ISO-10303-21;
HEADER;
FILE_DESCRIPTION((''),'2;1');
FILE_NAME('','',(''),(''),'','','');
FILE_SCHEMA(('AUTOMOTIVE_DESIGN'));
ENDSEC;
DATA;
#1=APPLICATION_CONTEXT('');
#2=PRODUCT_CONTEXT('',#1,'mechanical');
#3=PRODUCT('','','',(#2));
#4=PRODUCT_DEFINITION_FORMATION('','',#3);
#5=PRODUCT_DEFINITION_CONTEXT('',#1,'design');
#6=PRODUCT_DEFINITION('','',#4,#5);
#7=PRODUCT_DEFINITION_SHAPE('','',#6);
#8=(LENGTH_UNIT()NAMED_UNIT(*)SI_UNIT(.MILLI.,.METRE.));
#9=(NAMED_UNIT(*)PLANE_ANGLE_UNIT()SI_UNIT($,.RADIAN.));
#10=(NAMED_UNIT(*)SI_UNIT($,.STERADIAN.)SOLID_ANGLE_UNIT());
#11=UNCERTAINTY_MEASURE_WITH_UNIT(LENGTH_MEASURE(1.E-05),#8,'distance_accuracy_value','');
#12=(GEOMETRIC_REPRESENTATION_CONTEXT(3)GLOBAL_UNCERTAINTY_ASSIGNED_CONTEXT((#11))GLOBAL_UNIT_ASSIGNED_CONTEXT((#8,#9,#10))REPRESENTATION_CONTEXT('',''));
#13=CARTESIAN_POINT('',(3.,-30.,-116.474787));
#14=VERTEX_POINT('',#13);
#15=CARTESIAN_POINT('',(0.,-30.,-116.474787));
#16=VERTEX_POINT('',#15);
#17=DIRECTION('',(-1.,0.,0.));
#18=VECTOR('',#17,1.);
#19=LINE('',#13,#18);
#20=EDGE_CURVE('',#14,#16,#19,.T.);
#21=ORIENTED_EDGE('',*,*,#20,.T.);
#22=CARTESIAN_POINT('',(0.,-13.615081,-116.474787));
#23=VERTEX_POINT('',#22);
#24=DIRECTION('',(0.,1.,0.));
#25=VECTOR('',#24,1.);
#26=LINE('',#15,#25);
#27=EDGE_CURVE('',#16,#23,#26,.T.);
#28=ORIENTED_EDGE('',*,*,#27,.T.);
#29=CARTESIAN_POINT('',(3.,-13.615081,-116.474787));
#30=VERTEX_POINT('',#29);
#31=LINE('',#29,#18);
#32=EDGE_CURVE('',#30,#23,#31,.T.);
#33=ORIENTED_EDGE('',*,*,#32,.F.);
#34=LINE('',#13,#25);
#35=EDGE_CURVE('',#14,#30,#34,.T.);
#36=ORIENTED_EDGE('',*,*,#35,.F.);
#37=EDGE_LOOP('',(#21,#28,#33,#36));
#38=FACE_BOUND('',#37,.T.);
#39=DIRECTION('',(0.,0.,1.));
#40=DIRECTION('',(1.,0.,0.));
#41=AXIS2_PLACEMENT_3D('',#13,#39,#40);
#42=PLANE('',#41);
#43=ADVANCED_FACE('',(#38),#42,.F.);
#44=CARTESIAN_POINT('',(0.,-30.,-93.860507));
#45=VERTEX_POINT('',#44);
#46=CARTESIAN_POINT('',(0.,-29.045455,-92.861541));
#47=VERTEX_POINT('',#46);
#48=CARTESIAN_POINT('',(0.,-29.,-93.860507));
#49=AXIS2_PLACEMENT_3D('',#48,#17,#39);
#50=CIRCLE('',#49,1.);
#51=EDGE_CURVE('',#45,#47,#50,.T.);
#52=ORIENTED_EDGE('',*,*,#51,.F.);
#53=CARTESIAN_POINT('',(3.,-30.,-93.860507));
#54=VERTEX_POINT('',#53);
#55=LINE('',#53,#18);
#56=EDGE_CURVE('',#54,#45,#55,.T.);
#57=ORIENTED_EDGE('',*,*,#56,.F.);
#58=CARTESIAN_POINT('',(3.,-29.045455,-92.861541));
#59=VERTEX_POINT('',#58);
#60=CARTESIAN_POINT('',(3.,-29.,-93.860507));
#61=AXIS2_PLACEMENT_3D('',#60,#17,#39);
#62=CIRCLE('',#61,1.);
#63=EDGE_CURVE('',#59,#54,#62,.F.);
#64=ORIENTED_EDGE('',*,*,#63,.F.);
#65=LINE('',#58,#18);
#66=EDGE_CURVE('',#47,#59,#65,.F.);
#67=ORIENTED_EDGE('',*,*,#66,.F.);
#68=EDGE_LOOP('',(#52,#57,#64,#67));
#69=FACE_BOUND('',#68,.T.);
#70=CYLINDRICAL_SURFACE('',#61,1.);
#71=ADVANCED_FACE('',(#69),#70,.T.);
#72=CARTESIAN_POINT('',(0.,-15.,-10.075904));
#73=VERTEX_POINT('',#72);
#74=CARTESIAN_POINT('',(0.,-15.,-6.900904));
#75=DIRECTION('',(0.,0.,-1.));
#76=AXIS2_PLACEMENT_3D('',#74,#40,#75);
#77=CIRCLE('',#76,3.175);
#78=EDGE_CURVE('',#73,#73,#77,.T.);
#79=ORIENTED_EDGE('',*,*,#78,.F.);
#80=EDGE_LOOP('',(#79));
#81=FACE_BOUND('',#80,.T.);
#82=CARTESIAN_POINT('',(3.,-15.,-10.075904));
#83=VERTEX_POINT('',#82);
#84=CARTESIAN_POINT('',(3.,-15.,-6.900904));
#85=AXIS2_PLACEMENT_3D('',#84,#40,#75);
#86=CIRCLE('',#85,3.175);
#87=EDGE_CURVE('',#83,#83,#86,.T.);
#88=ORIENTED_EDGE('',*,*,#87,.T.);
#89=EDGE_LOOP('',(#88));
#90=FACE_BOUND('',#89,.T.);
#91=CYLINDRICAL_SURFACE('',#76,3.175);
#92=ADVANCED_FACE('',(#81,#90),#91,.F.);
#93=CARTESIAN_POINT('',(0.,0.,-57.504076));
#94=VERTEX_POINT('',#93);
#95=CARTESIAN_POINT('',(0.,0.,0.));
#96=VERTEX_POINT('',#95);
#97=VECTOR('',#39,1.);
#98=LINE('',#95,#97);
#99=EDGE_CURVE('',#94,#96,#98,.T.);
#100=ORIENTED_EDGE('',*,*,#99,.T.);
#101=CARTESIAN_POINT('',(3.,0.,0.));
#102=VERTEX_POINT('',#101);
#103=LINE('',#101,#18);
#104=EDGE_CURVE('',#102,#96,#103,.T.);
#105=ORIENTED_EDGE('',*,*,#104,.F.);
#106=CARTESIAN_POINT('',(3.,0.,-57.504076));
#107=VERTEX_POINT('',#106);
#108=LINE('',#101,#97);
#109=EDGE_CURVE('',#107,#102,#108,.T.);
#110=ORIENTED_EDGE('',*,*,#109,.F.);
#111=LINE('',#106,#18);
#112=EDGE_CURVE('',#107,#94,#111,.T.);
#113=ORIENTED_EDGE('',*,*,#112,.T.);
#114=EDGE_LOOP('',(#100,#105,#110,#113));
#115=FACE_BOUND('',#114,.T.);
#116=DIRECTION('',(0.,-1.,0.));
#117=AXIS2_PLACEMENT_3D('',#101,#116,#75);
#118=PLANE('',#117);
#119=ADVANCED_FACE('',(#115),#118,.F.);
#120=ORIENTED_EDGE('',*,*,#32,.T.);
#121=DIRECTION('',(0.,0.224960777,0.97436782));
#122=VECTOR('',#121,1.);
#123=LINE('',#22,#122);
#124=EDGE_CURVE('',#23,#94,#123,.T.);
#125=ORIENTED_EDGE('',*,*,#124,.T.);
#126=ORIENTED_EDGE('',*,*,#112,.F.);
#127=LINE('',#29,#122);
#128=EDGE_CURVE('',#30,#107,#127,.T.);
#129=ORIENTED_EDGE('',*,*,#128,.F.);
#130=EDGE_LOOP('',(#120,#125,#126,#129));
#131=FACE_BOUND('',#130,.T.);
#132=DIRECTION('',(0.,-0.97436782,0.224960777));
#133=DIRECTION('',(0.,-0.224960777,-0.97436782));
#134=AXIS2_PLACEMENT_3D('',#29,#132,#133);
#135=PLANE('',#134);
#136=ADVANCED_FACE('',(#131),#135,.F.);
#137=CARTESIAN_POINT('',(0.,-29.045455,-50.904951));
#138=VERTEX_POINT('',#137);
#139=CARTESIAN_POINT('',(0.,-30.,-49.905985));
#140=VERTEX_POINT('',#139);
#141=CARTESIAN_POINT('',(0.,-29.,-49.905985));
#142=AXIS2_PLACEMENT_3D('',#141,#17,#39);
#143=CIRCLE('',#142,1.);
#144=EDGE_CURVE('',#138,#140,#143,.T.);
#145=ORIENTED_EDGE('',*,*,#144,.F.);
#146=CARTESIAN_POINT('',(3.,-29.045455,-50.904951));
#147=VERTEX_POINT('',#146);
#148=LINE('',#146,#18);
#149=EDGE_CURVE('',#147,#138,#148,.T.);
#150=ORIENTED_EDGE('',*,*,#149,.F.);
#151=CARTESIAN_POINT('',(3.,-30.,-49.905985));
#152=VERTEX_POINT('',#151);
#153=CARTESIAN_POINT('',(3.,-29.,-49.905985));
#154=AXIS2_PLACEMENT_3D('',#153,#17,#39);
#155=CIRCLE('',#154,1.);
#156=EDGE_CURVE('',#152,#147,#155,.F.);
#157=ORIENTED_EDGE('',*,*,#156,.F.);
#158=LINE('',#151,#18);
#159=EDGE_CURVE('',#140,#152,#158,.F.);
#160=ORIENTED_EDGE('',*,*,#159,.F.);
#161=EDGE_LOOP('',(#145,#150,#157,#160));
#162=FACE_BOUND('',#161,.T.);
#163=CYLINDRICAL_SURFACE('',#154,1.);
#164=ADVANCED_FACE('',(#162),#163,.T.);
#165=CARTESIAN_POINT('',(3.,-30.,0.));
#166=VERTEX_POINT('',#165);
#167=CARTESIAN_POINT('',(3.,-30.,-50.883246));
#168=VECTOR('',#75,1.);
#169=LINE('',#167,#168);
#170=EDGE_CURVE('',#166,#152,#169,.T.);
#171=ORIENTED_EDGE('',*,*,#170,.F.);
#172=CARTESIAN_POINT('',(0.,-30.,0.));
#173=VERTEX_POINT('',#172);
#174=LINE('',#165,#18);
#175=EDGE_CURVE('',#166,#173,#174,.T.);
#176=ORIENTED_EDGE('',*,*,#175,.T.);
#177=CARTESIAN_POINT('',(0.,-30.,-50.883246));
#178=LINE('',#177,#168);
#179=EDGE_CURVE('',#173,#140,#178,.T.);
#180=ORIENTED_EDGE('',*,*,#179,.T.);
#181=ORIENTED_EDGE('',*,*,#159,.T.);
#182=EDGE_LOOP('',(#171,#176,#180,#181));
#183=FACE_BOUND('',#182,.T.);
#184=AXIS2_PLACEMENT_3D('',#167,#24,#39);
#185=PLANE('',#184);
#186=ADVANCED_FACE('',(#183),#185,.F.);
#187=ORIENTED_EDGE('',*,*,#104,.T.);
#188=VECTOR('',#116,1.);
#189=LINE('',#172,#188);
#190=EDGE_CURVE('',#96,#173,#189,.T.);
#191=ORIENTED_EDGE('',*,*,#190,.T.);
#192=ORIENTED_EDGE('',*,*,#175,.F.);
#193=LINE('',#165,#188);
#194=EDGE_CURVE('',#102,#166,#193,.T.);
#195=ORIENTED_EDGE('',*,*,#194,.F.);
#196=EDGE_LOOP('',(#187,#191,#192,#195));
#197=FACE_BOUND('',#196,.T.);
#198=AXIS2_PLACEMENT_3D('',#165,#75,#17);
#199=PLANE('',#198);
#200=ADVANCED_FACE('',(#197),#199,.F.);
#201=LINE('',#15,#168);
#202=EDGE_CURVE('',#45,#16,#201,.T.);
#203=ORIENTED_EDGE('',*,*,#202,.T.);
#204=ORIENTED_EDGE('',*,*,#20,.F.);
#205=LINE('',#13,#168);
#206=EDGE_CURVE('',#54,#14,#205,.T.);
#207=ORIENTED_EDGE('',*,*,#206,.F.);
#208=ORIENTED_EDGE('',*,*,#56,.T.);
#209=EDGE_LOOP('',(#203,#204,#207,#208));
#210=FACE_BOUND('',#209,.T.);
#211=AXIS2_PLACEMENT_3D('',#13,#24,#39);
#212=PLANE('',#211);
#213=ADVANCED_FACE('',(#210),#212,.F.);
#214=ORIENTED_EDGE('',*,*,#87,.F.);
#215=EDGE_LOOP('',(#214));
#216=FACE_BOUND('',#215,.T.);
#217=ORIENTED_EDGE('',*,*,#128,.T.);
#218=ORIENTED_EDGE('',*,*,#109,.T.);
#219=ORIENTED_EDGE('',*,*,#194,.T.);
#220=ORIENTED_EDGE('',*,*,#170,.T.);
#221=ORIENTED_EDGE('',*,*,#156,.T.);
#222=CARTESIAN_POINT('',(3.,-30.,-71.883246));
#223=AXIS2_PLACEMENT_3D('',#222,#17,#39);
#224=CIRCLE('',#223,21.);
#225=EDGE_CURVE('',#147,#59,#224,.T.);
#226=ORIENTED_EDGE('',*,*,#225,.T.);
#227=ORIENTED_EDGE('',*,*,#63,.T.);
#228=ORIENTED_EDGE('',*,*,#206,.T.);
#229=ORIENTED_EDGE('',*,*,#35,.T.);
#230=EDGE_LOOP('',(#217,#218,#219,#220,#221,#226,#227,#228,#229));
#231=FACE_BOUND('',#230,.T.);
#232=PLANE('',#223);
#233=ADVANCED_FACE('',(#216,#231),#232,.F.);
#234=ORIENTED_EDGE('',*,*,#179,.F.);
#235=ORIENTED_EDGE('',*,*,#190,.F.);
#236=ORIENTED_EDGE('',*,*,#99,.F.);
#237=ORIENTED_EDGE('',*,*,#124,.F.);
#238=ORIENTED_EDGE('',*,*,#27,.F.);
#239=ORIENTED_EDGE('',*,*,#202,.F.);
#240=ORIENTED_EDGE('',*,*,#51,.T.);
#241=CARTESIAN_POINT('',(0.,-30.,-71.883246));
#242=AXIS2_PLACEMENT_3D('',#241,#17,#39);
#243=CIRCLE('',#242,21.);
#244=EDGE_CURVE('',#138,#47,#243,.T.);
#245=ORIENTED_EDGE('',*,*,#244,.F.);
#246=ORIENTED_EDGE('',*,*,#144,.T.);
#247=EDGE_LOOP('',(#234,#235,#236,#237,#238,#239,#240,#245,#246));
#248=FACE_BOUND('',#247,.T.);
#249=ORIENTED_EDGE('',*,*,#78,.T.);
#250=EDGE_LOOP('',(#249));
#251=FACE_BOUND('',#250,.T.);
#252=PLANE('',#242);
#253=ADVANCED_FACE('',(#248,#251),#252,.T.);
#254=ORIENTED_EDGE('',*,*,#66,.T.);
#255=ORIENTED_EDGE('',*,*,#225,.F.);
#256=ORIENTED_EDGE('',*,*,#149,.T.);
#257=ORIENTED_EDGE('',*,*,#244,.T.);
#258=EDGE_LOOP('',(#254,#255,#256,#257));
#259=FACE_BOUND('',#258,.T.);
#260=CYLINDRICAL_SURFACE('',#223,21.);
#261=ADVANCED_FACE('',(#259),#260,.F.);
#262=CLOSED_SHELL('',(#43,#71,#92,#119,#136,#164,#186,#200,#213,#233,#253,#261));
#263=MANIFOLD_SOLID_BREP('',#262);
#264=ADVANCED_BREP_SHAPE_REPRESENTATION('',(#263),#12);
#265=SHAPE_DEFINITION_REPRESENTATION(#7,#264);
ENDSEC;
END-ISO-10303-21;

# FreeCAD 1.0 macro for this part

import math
import FreeCAD as App
import Part
import Sketcher

V = App.Vector


def edges_at(feature, points):
    """Names of the edges that pass closest to the given points."""
    edges = feature.Shape.Edges
    near = lambda p: min(range(len(edges)), key=lambda i: edges[i].distToShape(Part.Vertex(*p))[0])
    return sorted({f"Edge{near(p) + 1}" for p in points})

doc = App.newDocument("Part")
body = doc.addObject("PartDesign::Body", "Body")

sketch1 = doc.addObject("Sketcher::SketchObject", "Sketch")
body.addObject(sketch1)
sketch1.AttachmentSupport = (doc.YZ_Plane, [""])
sketch1.MapMode = "FlatFace"
sketch1.addGeometry(Part.LineSegment(V(0, -58, 0), V(0, 0, 0)), False)
sketch1.addGeometry(Part.LineSegment(V(0, 0, 0), V(-30, 0, 0)), False)
sketch1.addGeometry(Part.LineSegment(V(-30, 0, 0), V(-30, -51, 0)), False)
sketch1.addGeometry(Part.ArcOfCircle(Part.Circle(V(-30, -72, 0), V(0, 0, 1), 21), math.radians(-90), math.radians(90)), False)
sketch1.addGeometry(Part.LineSegment(V(-30, -93, 0), V(-30, -116, 0)), False)
sketch1.addGeometry(Part.LineSegment(V(-30, -116, 0), V(-14, -116, 0)), False)
sketch1.addGeometry(Part.LineSegment(V(-14, -116, 0), V(0, -58, 0)), False)
sketch1.addConstraint(Sketcher.Constraint("Coincident", 0, 2, 1, 1))
sketch1.addConstraint(Sketcher.Constraint("Coincident", 1, 2, 2, 1))
sketch1.addConstraint(Sketcher.Constraint("Coincident", 2, 2, 3, 2))
sketch1.addConstraint(Sketcher.Constraint("Coincident", 3, 1, 4, 1))
sketch1.addConstraint(Sketcher.Constraint("Coincident", 4, 2, 5, 1))
sketch1.addConstraint(Sketcher.Constraint("Coincident", 5, 2, 6, 1))
sketch1.addConstraint(Sketcher.Constraint("Coincident", 6, 2, 0, 1))
sketch1.addConstraint(Sketcher.Constraint("Vertical", 0))
sketch1.addConstraint(Sketcher.Constraint("Horizontal", 1))
sketch1.addConstraint(Sketcher.Constraint("Vertical", 2))
sketch1.addConstraint(Sketcher.Constraint("Vertical", 4))
sketch1.addConstraint(Sketcher.Constraint("Horizontal", 5))
sketch1.addConstraint(Sketcher.Constraint("Coincident", 0, 2, -1, 1))
sketch1.addConstraint(Sketcher.Constraint("Vertical", 3, 3, 1, 2))
sketch1.addConstraint(Sketcher.Constraint("Vertical", 2, 2, 3, 1))
sketch1.addConstraint(Sketcher.Constraint("Radius", 3, 21.0))
sketch1.addConstraint(Sketcher.Constraint("DistanceX", 1, 2, 1, 1, 30.0))
sketch1.addConstraint(Sketcher.Constraint("DistanceX", 5, 1, 5, 2, 16.384919))
sketch1.addConstraint(Sketcher.Constraint("DistanceY", 4, 2, 4, 1, 23.591541))
sketch1.addConstraint(Sketcher.Constraint("DistanceY", 0, 1, 0, 2, 57.504076))
sketch1.addConstraint(Sketcher.Constraint("DistanceY", 2, 2, 2, 1, 50.883246))
pad1 = doc.addObject("PartDesign::Pad", "Pad")
body.addObject(pad1)
pad1.Profile = sketch1
pad1.Length = 3

sketch2 = doc.addObject("Sketcher::SketchObject", "Sketch001")
body.addObject(sketch2)
sketch2.AttachmentSupport = (doc.YZ_Plane, [""])
sketch2.MapMode = "FlatFace"
sketch2.AttachmentOffset = App.Placement(V(0, 0, 3), App.Rotation())
sketch2.addGeometry(Part.Circle(V(-15, -6.9, 0), V(0, 0, 1), 3.2), False)
sketch2.addConstraint(Sketcher.Constraint("Diameter", 0, 6.35))
sketch2.addConstraint(Sketcher.Constraint("DistanceX", 0, 3, -1, 1, 15.0))
sketch2.addConstraint(Sketcher.Constraint("DistanceY", 0, 3, -1, 1, 6.900904))
pocket1 = doc.addObject("PartDesign::Pocket", "Pocket")
body.addObject(pocket1)
pocket1.Profile = sketch2
pocket1.Type = "ThroughAll"
doc.recompute()

fillet = doc.addObject("PartDesign::Fillet", "Fillet")
body.addObject(fillet)
fillet.Base = (pocket1, edges_at(pocket1, [(1.5, -30, -92.883), (1.5, -30, -50.883)]))
fillet.Radius = 1

doc.recompute()
